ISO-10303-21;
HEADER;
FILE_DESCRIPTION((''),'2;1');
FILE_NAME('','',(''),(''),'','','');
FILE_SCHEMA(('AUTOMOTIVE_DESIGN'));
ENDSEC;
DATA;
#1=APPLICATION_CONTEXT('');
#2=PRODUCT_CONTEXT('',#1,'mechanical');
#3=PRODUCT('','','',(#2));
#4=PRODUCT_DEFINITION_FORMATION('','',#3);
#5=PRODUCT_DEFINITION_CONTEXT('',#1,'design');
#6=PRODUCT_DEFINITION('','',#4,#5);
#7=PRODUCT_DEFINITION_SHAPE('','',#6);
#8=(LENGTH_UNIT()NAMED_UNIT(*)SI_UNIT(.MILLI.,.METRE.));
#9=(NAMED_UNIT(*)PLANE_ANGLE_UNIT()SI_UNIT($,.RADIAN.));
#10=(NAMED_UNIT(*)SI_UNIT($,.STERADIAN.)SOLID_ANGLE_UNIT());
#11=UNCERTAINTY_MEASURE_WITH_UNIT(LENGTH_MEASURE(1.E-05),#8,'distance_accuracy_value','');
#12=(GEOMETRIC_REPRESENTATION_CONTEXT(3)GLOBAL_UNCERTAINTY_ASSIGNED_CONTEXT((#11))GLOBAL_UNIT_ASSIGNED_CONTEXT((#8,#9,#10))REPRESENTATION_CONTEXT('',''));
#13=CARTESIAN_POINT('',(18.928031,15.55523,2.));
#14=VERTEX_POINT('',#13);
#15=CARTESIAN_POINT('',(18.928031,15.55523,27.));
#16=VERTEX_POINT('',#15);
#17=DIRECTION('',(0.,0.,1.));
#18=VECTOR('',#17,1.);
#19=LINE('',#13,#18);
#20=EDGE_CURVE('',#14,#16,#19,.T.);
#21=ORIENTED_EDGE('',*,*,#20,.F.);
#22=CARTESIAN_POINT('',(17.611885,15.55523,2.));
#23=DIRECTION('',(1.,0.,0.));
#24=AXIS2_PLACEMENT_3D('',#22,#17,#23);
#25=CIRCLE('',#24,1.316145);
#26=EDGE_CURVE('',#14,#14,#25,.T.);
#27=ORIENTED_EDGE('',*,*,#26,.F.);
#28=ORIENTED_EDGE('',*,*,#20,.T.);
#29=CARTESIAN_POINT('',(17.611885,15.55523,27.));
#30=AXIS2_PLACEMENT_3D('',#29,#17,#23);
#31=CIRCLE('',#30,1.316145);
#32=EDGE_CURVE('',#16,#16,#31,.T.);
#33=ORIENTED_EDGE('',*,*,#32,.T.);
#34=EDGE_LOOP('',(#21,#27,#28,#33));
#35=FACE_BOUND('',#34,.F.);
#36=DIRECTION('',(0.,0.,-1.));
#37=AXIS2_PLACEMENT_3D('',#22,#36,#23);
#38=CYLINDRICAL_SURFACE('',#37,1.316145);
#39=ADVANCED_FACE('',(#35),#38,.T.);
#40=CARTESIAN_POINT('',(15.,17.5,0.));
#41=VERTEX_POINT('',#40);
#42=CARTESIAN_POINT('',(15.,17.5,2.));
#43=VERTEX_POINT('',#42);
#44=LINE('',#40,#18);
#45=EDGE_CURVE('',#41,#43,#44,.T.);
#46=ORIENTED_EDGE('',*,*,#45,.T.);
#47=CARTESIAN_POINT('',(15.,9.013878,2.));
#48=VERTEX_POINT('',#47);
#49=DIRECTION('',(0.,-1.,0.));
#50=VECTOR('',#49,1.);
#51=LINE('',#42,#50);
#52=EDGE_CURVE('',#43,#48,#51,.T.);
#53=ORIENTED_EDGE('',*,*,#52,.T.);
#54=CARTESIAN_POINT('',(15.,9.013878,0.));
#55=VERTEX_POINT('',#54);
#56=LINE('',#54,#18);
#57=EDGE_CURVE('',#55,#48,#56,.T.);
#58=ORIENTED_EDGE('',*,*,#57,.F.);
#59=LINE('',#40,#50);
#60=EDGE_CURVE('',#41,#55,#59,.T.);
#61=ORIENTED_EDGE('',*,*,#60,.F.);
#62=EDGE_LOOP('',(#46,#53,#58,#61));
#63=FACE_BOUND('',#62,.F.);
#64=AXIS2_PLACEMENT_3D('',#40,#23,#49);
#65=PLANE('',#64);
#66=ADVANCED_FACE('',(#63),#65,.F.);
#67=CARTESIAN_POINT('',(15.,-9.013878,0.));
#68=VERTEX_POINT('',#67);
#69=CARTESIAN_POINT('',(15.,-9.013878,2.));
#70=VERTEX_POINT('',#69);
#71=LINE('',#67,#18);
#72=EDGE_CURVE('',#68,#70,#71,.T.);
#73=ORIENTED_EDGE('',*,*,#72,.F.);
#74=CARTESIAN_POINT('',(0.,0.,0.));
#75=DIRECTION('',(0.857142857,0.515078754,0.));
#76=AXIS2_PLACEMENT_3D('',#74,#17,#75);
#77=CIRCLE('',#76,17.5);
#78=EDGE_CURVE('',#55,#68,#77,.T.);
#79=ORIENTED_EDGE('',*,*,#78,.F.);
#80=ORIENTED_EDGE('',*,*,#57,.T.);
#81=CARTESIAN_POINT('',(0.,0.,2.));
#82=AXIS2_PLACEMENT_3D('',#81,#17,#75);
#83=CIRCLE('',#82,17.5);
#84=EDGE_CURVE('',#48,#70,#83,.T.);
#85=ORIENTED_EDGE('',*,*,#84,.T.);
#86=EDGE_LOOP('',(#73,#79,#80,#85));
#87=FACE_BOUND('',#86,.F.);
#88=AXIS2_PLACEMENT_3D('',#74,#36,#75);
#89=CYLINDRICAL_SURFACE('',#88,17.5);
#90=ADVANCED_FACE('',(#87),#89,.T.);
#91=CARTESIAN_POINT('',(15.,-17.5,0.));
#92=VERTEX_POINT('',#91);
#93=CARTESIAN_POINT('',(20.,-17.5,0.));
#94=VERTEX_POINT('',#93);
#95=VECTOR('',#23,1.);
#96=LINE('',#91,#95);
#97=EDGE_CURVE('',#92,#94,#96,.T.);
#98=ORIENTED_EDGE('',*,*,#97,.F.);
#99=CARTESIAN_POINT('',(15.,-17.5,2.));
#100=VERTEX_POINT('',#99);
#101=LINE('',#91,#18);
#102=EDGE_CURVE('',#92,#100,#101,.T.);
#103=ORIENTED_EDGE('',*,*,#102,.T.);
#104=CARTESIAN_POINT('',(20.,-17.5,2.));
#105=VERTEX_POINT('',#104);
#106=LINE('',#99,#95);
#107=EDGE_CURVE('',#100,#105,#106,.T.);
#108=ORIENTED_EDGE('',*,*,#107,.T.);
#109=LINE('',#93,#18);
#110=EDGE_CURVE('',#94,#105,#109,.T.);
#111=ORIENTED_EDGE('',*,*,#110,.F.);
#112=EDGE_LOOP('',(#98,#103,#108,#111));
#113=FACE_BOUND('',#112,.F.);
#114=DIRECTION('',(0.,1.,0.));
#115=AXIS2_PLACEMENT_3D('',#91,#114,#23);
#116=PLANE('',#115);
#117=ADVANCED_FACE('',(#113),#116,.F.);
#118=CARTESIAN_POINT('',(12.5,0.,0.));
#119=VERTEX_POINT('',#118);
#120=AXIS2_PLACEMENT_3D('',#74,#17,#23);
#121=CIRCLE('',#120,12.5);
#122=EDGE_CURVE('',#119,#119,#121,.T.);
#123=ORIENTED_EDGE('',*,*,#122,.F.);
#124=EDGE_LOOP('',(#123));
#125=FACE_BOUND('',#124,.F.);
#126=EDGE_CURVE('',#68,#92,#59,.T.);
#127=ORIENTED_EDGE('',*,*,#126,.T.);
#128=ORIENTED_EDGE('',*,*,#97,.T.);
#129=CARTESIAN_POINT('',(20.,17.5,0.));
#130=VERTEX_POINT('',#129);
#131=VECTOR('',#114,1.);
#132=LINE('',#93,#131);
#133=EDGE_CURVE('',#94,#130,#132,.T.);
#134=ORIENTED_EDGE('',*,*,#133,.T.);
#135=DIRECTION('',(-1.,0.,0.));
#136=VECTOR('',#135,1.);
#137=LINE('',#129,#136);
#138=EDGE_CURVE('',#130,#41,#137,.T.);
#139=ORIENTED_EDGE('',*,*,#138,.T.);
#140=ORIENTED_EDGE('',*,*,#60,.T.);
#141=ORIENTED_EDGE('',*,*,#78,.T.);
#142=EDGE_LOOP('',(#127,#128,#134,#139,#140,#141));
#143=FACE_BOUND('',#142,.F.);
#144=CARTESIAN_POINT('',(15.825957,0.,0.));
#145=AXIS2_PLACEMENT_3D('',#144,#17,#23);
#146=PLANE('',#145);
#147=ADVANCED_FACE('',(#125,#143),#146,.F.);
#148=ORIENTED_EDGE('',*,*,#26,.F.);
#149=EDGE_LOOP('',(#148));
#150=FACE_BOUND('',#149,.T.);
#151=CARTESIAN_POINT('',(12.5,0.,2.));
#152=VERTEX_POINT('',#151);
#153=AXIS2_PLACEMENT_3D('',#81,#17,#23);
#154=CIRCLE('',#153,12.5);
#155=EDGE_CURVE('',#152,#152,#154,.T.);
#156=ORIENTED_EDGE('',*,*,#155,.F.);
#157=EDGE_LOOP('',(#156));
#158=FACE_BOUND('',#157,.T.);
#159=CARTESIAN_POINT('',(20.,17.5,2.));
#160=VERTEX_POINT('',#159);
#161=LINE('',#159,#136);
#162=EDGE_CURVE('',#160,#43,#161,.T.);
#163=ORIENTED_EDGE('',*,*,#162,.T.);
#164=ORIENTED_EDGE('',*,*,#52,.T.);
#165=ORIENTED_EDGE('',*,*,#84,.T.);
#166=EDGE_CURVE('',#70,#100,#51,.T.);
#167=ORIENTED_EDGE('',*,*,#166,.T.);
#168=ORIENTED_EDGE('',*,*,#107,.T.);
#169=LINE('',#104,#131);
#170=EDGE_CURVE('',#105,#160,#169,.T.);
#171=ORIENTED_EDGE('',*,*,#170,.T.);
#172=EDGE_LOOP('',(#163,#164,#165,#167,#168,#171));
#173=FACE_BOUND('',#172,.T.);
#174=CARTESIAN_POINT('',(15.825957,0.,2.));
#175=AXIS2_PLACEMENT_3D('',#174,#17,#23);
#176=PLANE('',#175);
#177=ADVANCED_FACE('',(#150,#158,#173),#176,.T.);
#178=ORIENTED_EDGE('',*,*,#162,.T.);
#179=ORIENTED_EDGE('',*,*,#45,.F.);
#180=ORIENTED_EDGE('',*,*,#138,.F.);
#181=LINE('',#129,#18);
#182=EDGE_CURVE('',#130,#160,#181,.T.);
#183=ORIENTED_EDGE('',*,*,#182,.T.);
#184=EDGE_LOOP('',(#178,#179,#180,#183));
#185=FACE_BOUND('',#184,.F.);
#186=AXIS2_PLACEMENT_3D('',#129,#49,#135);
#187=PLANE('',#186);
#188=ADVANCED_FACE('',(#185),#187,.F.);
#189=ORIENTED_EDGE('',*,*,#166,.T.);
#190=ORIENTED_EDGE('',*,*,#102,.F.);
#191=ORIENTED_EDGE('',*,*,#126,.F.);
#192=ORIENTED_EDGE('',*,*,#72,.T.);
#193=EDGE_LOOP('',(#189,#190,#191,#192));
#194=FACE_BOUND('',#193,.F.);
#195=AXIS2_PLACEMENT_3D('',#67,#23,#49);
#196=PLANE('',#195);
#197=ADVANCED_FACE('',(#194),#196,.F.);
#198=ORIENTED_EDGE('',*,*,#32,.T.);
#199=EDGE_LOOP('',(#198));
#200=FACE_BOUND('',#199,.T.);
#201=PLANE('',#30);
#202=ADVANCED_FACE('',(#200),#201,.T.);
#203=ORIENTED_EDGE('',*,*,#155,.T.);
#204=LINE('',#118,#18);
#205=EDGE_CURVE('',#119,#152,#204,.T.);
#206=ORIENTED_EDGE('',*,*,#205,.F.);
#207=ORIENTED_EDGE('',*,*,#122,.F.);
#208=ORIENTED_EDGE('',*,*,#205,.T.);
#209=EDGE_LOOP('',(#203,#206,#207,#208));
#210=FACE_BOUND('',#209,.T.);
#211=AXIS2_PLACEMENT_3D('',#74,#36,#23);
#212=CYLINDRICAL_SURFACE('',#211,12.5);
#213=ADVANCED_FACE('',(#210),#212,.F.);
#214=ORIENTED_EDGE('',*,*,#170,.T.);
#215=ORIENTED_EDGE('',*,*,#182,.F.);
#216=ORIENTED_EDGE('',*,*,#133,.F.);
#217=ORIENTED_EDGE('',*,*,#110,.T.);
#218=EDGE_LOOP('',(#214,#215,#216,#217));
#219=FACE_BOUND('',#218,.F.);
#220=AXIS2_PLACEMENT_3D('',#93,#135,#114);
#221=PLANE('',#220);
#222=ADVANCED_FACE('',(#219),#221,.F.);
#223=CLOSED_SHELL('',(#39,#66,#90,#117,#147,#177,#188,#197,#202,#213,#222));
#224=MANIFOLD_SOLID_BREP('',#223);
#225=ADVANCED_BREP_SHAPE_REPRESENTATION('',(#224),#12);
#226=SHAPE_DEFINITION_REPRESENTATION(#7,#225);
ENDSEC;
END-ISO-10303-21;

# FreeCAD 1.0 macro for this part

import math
import FreeCAD as App
import Part
import Sketcher

doc = App.newDocument("Part")
body = doc.addObject("PartDesign::Body", "Body")

sketch1 = doc.addObject("Sketcher::SketchObject", "Sketch")
body.addObject(sketch1)
sketch1.AttachmentSupport = (doc.XY_Plane, [""])
sketch1.MapMode = "FlatFace"
sketch1.addGeometry(Part.LineSegment(App.Vector(15, -17.5, 0), App.Vector(20, -17.5, 0)), False)
sketch1.addGeometry(Part.LineSegment(App.Vector(20, -17.5, 0), App.Vector(20, 17.5, 0)), False)
sketch1.addGeometry(Part.LineSegment(App.Vector(20, 17.5, 0), App.Vector(15, 17.5, 0)), False)
sketch1.addGeometry(Part.LineSegment(App.Vector(15, 17.5, 0), App.Vector(15, 9.013878, 0)), False)
sketch1.addGeometry(Part.ArcOfCircle(Part.Circle(App.Vector(0, 0, 0), App.Vector(0, 0, 1), 17.5), math.radians(31.002719), math.radians(328.997281)), False)
sketch1.addGeometry(Part.LineSegment(App.Vector(15, -9.013878, 0), App.Vector(15, -17.5, 0)), False)
sketch1.addGeometry(Part.Circle(App.Vector(0, 0, 0), App.Vector(0, 0, 1), 12.5), False)
sketch1.addConstraint(Sketcher.Constraint("Coincident", 0, 2, 1, 1))
sketch1.addConstraint(Sketcher.Constraint("Coincident", 1, 2, 2, 1))
sketch1.addConstraint(Sketcher.Constraint("Coincident", 2, 2, 3, 1))
sketch1.addConstraint(Sketcher.Constraint("Coincident", 3, 2, 4, 1))
sketch1.addConstraint(Sketcher.Constraint("Coincident", 4, 2, 5, 1))
sketch1.addConstraint(Sketcher.Constraint("Coincident", 5, 2, 0, 1))
sketch1.addConstraint(Sketcher.Constraint("Horizontal", 0))
sketch1.addConstraint(Sketcher.Constraint("Vertical", 1))
sketch1.addConstraint(Sketcher.Constraint("Horizontal", 2))
sketch1.addConstraint(Sketcher.Constraint("Vertical", 3))
sketch1.addConstraint(Sketcher.Constraint("Vertical", 5))
sketch1.addConstraint(Sketcher.Constraint("Coincident", 4, 3, -1, 1))
sketch1.addConstraint(Sketcher.Constraint("Coincident", 6, 3, -1, 1))
sketch1.addConstraint(Sketcher.Constraint("Symmetric", 2, 2, 5, 2, -1))
sketch1.addConstraint(Sketcher.Constraint("Diameter", 6, 25.0))
sketch1.addConstraint(Sketcher.Constraint("Radius", 4, 17.5))
sketch1.addConstraint(Sketcher.Constraint("DistanceX", 0, 1, 0, 2, 5.0))
sketch1.addConstraint(Sketcher.Constraint("DistanceY", 1, 1, 1, 2, 35.0))
sketch1.addConstraint(Sketcher.Constraint("DistanceX", -1, 1, 0, 2, 20.0))
pad1 = doc.addObject("PartDesign::Pad", "Pad")
body.addObject(pad1)
pad1.Profile = sketch1
pad1.Length = 2

sketch2 = doc.addObject("Sketcher::SketchObject", "Sketch001")
body.addObject(sketch2)
sketch2.AttachmentSupport = (doc.XY_Plane, [""])
sketch2.MapMode = "FlatFace"
sketch2.AttachmentOffset = App.Placement(App.Vector(0, 0, 2), App.Rotation())
sketch2.addGeometry(Part.Circle(App.Vector(17.611885, 15.55523, 0), App.Vector(0, 0, 1), 1.316145), False)
sketch2.addConstraint(Sketcher.Constraint("Diameter", 0, 2.63229))
sketch2.addConstraint(Sketcher.Constraint("DistanceY", -1, 1, 0, 3, 15.55523))
sketch2.addConstraint(Sketcher.Constraint("DistanceX", -1, 1, 0, 3, 17.611885))
pad2 = doc.addObject("PartDesign::Pad", "Pad001")
body.addObject(pad2)
pad2.Profile = sketch2
pad2.Length = 25

doc.recompute()
